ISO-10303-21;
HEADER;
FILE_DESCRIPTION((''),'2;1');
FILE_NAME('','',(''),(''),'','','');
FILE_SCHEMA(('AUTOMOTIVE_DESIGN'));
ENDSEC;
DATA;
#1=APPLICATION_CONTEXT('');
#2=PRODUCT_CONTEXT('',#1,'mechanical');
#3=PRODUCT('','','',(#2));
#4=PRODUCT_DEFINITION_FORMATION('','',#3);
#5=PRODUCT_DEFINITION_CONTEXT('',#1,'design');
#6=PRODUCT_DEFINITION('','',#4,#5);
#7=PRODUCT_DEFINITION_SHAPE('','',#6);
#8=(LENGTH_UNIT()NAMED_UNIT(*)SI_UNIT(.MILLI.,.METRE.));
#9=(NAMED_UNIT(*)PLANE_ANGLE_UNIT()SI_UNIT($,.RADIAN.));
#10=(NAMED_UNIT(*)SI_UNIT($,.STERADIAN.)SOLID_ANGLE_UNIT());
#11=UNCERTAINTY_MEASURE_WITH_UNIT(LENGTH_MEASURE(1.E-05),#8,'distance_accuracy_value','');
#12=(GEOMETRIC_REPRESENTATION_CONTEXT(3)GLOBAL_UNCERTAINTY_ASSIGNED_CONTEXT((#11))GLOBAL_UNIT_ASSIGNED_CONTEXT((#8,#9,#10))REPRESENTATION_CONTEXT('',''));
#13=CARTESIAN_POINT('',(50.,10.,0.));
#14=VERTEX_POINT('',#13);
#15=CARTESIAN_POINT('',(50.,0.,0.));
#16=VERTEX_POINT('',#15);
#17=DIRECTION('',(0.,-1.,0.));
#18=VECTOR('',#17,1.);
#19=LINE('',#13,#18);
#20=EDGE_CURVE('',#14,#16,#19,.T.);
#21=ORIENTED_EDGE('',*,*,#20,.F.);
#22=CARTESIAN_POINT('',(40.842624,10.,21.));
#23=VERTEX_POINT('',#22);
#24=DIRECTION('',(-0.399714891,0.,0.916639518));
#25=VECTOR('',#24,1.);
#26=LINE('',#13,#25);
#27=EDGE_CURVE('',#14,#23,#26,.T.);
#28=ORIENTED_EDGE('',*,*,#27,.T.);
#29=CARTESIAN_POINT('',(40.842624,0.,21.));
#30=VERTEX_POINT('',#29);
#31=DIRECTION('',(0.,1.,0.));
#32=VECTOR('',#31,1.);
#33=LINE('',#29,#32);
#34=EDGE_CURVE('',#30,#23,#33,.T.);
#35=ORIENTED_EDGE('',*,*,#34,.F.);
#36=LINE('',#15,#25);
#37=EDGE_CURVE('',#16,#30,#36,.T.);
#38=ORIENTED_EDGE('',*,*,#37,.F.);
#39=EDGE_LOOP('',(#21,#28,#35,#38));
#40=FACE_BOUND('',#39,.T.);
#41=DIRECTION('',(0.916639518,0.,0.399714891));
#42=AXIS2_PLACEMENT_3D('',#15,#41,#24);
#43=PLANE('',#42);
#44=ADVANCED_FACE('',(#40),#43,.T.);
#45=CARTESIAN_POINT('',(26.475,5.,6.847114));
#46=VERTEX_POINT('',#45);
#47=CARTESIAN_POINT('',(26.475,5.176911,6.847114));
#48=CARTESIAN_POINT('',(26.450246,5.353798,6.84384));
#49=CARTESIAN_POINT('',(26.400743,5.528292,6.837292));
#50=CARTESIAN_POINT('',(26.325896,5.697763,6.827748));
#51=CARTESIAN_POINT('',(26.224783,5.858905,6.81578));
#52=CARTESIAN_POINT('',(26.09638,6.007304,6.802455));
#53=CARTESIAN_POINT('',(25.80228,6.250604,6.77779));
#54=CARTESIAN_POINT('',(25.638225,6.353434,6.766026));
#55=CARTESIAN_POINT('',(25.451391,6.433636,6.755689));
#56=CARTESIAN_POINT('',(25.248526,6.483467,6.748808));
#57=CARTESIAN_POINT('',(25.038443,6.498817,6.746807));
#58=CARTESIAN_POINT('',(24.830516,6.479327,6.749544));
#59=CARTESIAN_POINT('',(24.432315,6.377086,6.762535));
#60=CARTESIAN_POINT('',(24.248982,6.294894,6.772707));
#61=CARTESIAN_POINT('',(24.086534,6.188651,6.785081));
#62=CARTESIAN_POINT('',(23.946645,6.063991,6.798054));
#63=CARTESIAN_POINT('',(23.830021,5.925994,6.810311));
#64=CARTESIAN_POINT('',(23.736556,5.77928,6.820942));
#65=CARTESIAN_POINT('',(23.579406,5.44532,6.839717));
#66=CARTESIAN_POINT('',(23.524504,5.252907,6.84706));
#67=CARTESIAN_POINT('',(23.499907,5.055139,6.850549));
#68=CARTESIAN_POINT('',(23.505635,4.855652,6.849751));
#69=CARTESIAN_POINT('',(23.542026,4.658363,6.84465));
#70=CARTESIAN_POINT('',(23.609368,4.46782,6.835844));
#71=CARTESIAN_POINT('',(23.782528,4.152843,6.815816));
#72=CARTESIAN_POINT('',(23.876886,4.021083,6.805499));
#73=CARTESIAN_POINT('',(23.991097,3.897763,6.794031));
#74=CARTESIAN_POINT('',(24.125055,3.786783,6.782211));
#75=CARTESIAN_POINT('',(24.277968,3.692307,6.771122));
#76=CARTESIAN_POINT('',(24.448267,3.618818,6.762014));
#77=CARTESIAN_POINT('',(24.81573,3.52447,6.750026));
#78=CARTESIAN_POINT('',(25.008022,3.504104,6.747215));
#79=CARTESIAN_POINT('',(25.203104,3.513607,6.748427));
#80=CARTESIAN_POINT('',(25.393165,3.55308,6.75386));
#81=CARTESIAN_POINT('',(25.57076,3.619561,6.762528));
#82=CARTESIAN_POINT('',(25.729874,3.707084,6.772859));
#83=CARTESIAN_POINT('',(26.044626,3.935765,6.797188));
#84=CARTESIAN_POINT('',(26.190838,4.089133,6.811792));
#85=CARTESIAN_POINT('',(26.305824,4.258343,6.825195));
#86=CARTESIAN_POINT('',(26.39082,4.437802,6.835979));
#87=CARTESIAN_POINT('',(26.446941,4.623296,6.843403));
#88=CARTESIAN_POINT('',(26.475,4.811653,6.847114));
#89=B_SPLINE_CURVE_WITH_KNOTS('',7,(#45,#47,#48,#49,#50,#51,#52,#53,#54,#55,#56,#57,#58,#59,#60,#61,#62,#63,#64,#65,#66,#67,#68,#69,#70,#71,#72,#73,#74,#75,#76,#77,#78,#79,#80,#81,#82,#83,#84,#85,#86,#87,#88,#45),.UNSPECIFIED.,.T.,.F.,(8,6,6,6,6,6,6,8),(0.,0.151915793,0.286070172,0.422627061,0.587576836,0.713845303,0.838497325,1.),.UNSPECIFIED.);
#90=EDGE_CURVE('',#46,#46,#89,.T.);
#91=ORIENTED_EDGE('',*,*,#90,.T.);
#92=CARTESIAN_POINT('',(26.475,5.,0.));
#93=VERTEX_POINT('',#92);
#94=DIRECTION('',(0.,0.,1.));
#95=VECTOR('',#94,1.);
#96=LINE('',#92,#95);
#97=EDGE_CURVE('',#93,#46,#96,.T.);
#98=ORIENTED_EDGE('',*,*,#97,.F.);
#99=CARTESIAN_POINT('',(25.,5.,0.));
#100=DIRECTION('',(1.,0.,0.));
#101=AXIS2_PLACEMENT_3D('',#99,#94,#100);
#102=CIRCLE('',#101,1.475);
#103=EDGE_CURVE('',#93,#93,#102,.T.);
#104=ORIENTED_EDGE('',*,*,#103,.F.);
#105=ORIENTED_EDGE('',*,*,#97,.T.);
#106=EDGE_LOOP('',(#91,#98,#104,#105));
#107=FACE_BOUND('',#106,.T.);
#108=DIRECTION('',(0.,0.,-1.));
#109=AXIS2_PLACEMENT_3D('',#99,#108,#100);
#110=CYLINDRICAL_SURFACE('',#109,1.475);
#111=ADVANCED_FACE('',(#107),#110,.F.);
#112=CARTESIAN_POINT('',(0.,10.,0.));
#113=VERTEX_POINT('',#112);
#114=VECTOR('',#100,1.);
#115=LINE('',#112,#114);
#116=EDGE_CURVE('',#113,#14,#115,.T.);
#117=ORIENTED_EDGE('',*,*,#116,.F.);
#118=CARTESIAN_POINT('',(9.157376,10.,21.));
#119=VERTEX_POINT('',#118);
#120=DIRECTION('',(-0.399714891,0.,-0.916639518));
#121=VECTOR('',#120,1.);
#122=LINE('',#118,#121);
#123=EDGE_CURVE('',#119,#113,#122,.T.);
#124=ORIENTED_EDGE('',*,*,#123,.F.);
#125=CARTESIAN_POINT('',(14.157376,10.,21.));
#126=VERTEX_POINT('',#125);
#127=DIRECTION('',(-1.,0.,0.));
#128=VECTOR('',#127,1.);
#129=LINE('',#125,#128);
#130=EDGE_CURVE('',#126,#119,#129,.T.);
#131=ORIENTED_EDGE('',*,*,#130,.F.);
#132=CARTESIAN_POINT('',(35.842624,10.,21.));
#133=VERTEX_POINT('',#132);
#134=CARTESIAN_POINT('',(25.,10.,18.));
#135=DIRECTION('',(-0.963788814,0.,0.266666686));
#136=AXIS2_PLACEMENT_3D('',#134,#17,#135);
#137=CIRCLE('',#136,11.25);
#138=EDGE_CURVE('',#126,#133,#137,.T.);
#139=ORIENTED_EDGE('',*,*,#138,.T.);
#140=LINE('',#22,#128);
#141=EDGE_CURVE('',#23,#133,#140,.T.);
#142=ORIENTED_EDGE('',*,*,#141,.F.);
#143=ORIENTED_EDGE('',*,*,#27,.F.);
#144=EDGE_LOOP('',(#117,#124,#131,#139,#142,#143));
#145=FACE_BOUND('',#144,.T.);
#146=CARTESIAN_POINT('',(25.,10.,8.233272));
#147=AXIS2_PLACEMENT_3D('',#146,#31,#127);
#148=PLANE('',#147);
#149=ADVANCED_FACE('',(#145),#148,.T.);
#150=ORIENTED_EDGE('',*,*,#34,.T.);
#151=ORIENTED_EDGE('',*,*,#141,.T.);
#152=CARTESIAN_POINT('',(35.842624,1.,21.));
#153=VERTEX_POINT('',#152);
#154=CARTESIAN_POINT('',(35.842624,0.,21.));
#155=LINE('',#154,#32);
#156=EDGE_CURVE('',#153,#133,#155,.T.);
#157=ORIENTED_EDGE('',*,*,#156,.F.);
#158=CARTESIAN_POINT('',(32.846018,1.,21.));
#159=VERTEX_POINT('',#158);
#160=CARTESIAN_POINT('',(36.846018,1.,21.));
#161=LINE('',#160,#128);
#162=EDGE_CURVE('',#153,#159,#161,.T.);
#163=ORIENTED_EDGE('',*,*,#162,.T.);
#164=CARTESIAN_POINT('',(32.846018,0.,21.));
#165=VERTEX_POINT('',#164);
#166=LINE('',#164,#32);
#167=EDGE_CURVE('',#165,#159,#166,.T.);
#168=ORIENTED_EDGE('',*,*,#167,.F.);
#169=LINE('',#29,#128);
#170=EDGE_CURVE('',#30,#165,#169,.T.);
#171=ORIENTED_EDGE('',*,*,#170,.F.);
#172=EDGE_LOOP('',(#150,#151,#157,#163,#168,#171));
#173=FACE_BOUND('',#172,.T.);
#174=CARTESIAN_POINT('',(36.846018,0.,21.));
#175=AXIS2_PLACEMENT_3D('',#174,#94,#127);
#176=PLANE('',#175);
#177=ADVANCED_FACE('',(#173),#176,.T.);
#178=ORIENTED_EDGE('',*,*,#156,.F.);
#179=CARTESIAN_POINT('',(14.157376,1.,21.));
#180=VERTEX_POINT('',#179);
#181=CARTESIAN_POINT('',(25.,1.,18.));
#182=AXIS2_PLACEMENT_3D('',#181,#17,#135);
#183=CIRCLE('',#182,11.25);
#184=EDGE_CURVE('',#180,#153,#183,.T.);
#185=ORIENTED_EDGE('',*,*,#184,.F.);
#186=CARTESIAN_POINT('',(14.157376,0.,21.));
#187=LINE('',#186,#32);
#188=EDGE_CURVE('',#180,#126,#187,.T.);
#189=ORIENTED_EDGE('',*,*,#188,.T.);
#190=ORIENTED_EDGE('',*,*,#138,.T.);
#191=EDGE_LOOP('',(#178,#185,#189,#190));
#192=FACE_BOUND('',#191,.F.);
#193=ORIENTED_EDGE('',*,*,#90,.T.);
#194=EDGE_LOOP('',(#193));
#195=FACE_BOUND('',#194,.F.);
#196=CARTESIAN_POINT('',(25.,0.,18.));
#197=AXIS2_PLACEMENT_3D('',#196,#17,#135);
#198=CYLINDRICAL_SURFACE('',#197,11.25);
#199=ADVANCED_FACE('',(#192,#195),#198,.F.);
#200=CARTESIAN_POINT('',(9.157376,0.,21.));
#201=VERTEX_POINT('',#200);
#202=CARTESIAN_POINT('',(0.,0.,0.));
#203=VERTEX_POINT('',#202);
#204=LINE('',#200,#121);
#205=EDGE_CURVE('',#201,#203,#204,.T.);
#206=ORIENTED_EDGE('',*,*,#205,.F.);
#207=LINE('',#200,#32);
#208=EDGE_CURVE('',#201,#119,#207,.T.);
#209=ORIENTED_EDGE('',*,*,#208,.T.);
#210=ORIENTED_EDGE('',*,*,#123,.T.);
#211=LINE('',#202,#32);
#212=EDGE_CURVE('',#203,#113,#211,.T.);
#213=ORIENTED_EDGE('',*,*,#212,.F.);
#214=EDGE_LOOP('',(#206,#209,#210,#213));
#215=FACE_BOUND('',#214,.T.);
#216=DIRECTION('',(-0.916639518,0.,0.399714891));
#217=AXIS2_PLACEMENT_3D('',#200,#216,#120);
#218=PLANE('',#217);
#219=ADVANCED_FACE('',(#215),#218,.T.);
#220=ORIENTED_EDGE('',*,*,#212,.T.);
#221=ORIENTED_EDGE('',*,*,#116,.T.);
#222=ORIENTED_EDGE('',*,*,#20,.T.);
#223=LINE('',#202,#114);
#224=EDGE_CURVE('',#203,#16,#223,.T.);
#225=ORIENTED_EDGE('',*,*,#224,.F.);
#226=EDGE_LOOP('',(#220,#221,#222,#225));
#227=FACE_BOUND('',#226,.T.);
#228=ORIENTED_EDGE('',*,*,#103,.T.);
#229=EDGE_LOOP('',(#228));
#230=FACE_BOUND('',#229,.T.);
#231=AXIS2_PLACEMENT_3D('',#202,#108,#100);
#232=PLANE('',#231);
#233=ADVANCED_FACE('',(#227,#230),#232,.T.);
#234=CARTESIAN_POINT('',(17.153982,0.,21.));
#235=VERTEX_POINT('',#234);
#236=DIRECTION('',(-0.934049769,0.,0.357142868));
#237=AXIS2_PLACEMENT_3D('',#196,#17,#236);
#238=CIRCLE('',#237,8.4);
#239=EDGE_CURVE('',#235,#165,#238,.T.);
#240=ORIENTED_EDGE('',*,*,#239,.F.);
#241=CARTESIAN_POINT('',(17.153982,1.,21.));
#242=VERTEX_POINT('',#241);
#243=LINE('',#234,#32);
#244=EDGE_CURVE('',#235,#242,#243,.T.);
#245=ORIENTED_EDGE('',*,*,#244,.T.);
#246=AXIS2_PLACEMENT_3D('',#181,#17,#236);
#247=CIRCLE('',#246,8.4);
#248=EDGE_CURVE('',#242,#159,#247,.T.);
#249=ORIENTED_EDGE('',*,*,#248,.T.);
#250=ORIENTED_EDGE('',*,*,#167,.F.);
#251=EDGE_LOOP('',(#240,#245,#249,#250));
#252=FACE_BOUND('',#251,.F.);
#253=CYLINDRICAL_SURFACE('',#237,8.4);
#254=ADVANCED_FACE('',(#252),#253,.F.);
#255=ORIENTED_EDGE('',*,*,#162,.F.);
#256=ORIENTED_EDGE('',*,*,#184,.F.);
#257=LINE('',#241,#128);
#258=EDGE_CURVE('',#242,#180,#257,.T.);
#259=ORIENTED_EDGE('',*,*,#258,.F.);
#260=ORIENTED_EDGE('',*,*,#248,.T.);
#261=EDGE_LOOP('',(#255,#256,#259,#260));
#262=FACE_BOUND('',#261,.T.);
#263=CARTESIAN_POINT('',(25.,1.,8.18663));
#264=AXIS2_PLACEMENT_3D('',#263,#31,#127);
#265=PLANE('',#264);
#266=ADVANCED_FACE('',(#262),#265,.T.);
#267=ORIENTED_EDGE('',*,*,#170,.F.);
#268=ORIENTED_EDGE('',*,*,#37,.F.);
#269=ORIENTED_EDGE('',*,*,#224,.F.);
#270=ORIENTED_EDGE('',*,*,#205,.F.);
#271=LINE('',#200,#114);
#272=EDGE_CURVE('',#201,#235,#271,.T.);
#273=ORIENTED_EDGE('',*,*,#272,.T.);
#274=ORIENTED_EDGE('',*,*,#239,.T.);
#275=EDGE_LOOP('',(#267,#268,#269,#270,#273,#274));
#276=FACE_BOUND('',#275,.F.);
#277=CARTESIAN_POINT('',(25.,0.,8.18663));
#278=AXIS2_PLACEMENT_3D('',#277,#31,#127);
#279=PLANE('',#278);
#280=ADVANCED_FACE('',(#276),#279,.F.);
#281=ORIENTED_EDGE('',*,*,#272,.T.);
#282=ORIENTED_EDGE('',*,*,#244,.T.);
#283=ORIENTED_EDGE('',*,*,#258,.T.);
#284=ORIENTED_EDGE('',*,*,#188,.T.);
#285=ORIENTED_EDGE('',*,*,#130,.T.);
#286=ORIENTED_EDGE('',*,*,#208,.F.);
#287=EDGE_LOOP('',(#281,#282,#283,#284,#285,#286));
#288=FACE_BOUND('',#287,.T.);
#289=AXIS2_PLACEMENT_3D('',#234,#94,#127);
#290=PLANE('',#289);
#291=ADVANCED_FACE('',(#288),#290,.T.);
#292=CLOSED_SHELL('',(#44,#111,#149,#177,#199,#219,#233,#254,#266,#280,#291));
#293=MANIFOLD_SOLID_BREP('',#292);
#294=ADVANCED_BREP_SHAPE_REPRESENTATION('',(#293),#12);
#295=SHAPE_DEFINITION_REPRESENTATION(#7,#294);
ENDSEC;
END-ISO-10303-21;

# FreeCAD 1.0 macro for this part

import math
import FreeCAD as App
import Part
import Sketcher
Q = App.Units.Quantity

doc = App.newDocument("Part")
body = doc.addObject("PartDesign::Body", "Body")

# Sketch on XZ plane
sketch1 = doc.addObject("Sketcher::SketchObject", "Sketch")
body.addObject(sketch1)
sketch1.AttachmentSupport = (doc.XZ_Plane, [""])
sketch1.MapMode = "FlatFace"
sketch1.addGeometry([
    Part.ArcOfCircle(Part.Circle(App.Vector(25, 18, 0), App.Vector(0, 0, 1), 8.4), math.radians(159), math.radians(381)),  # 0
    Part.LineSegment(App.Vector(17.2, 21, 0), App.Vector(13.2, 21, 0)),  # 1
    Part.LineSegment(App.Vector(13.2, 21, 0), App.Vector(0, 0, 0)),  # 2
    Part.LineSegment(App.Vector(0, 0, 0), App.Vector(50, 0, 0)),  # 3
    Part.LineSegment(App.Vector(50, 0, 0), App.Vector(36.8, 21, 0)),  # 4
    Part.LineSegment(App.Vector(36.8, 21, 0), App.Vector(32.8, 21, 0)),  # 5
], False)
sketch1.addConstraint([
    Sketcher.Constraint("Coincident", 0, 1, 1, 1),
    Sketcher.Constraint("Coincident", 1, 2, 2, 1),
    Sketcher.Constraint("Coincident", 2, 2, 3, 1),
    Sketcher.Constraint("Coincident", 3, 2, 4, 1),
    Sketcher.Constraint("Coincident", 4, 2, 5, 1),
    Sketcher.Constraint("Coincident", 5, 2, 0, 2),
    Sketcher.Constraint("Horizontal", 1),
    Sketcher.Constraint("Horizontal", 3),
    Sketcher.Constraint("Horizontal", 5),
    Sketcher.Constraint("Coincident", 2, 2, -1, 1),
    Sketcher.Constraint("Horizontal", 1, 2, 4, 2),
    Sketcher.Constraint("Equal", 1, 5),
    Sketcher.Constraint("Equal", 2, 4),
    Sketcher.Constraint("Radius", 0, Q("8.4 mm")),
    Sketcher.Constraint("DistanceX", 1, 2, 1, 1, Q("4 mm")),
    Sketcher.Constraint("DistanceX", 3, 1, 3, 2, Q("50 mm")),
    Sketcher.Constraint("DistanceY", -1, 1, 0, 3, Q("18 mm")),
    Sketcher.Constraint("DistanceY", -1, 1, 0, 1, Q("21 mm")),
])
pad1 = doc.addObject("PartDesign::Pad", "Pad")
body.addObject(pad1)
pad1.Profile = sketch1
pad1.Length = 1
pad1.Reversed = True

# Sketch on XZ plane
sketch2 = doc.addObject("Sketcher::SketchObject", "Sketch001")
body.addObject(sketch2)
sketch2.AttachmentSupport = (doc.XZ_Plane, [""])
sketch2.MapMode = "FlatFace"
sketch2.addGeometry([
    Part.ArcOfCircle(Part.Circle(App.Vector(25, 18, 0), App.Vector(0, 0, 1), 11), math.radians(165), math.radians(375)),  # 0
    Part.LineSegment(App.Vector(14, 21, 0), App.Vector(9, 21, 0)),  # 1
    Part.LineSegment(App.Vector(9, 21, 0), App.Vector(0, 0, 0)),  # 2
    Part.LineSegment(App.Vector(0, 0, 0), App.Vector(50, 0, 0)),  # 3
    Part.LineSegment(App.Vector(50, 0, 0), App.Vector(41, 21, 0)),  # 4
    Part.LineSegment(App.Vector(41, 21, 0), App.Vector(36, 21, 0)),  # 5
], False)
sketch2.addConstraint([
    Sketcher.Constraint("Coincident", 0, 1, 1, 1),
    Sketcher.Constraint("Coincident", 1, 2, 2, 1),
    Sketcher.Constraint("Coincident", 2, 2, 3, 1),
    Sketcher.Constraint("Coincident", 3, 2, 4, 1),
    Sketcher.Constraint("Coincident", 4, 2, 5, 1),
    Sketcher.Constraint("Coincident", 5, 2, 0, 2),
    Sketcher.Constraint("Horizontal", 1),
    Sketcher.Constraint("Horizontal", 3),
    Sketcher.Constraint("Horizontal", 5),
    Sketcher.Constraint("Coincident", 2, 2, -1, 1),
    Sketcher.Constraint("Horizontal", 1, 2, 4, 2),
    Sketcher.Constraint("Equal", 1, 5),
    Sketcher.Constraint("Equal", 2, 4),
    Sketcher.Constraint("DistanceX", 1, 2, 1, 1, Q("5 mm")),
    Sketcher.Constraint("DistanceX", 3, 1, 3, 2, Q("50 mm")),
    Sketcher.Constraint("Radius", 0, Q("11.25 mm")),
    Sketcher.Constraint("DistanceY", -1, 1, 0, 3, Q("18 mm")),
    Sketcher.Constraint("DistanceY", -1, 1, 0, 1, Q("21 mm")),
])
pad2 = doc.addObject("PartDesign::Pad", "Pad001")
body.addObject(pad2)
pad2.Profile = sketch2
pad2.Length = 10
pad2.Reversed = True

# Sketch on XY plane
sketch3 = doc.addObject("Sketcher::SketchObject", "Sketch002")
body.addObject(sketch3)
sketch3.AttachmentSupport = (doc.XY_Plane, [""])
sketch3.MapMode = "FlatFace"
sketch3.addGeometry(Part.Circle(App.Vector(25, 5, 0), App.Vector(0, 0, 1), 1.5), False)
sketch3.addConstraint([
    Sketcher.Constraint("Diameter", 0, Q("2.95 mm")),
    Sketcher.Constraint("DistanceX", -1, 1, 0, 3, Q("25 mm")),
    Sketcher.Constraint("DistanceY", -1, 1, 0, 3, Q("5 mm")),
])
pocket1 = doc.addObject("PartDesign::Pocket", "Pocket")
body.addObject(pocket1)
pocket1.Profile = sketch3
pocket1.Length = 50
pocket1.Reversed = True

doc.recompute()
